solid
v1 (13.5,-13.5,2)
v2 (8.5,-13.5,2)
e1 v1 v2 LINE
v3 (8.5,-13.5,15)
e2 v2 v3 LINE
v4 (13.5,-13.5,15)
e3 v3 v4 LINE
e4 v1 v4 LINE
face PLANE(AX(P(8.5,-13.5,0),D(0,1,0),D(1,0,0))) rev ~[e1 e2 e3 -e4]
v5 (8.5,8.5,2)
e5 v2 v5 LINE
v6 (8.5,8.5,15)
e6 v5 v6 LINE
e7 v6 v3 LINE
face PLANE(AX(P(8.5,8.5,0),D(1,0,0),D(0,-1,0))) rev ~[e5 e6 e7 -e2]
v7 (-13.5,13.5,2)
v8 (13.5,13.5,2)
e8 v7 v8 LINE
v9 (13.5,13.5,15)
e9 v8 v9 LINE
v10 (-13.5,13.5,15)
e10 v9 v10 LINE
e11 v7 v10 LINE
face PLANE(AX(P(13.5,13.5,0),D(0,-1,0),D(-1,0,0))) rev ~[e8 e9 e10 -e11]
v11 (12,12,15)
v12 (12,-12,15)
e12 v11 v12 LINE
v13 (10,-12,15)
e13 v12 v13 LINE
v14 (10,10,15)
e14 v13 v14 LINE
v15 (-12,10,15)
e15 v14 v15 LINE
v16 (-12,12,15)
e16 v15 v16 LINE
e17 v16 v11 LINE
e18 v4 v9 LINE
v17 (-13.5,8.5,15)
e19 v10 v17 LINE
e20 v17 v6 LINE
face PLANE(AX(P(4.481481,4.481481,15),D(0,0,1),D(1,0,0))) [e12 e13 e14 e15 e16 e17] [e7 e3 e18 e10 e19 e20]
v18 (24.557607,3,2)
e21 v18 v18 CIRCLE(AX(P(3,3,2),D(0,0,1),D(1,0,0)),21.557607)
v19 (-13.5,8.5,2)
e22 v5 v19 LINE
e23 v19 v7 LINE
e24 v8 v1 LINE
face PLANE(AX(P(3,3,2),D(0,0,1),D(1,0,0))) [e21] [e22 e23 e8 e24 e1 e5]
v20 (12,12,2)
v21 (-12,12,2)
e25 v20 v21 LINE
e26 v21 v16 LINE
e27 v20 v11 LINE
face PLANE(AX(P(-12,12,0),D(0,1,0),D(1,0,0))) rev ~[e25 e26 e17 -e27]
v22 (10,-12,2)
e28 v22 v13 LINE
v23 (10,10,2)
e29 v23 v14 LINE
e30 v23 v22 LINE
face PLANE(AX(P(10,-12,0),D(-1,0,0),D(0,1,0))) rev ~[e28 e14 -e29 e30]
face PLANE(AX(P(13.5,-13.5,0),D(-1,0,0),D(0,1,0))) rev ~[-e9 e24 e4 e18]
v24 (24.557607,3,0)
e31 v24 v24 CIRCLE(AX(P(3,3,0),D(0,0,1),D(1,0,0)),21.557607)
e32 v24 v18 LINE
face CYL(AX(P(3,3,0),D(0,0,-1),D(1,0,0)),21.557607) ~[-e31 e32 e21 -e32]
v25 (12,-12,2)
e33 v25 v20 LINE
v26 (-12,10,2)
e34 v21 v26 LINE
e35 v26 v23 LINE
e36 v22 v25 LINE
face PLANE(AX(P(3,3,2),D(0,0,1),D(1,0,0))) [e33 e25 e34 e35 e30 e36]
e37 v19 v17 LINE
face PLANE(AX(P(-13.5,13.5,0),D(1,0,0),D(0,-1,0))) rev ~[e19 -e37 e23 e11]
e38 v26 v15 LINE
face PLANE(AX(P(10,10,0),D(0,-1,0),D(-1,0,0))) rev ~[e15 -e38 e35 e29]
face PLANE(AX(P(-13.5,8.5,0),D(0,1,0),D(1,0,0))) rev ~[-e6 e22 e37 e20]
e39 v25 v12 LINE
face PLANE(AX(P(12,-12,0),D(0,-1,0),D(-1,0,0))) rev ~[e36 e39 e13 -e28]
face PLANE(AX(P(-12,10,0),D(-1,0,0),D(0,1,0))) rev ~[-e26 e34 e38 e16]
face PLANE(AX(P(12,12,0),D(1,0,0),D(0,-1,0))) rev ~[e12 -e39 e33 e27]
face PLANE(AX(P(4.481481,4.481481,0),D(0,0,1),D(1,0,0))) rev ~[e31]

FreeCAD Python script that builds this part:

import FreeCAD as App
import Part
import Sketcher

V = App.Vector
Q = App.Units.Quantity


def add_polygon(sketch, points):
    """Adds a closed chain of lines whose ends are joined by coincident constraints."""
    first, n = sketch.GeometryCount, len(points)
    for a, b in zip(points, points[1:] + points[:1]):
        sketch.addGeometry(Part.LineSegment(App.Vector(*a, 0), App.Vector(*b, 0)), False)
    for i in range(n):
        sketch.addConstraint(Sketcher.Constraint("Coincident", first + i, 2, first + (i + 1) % n, 1))

doc = App.newDocument("Part")
body = doc.addObject("PartDesign::Body", "Body")

sketch1 = body.newObject("Sketcher::SketchObject", "Sketch")
sketch1.AttachmentSupport = (doc.getObject("XY_Plane"), [""])
sketch1.MapMode = "FlatFace"
sketch1.addGeometry(Part.Circle(V(3, 3, 0), V(0, 0, 1), 21.557607), False)
sketch1.addConstraint([
    Sketcher.Constraint("DistanceX", -1, 1, 0, 3, Q("3 mm")),
    Sketcher.Constraint("DistanceY", -1, 1, 0, 3, Q("3 mm")),
    Sketcher.Constraint("Diameter", 0, Q("43.115214 mm")),
])
pad1 = body.newObject("PartDesign::Pad", "Pad")
pad1.Profile = sketch1
pad1.Length = 2

sketch2 = body.newObject("Sketcher::SketchObject", "Sketch001")
sketch2.AttachmentSupport = (doc.getObject("XY_Plane"), [""])
sketch2.MapMode = "FlatFace"
add_polygon(sketch2, [(13.5, -13.5), (13.5, 13.5), (-13.5, 13.5), (-13.5, 8.5), (8.5, 8.5), (8.5, -13.5)])
add_polygon(sketch2, [(10, 10), (-12, 10), (-12, 12), (12, 12), (12, -12), (10, -12)])
sketch2.addConstraint([
    Sketcher.Constraint("Vertical", 0),
    Sketcher.Constraint("Horizontal", 1),
    Sketcher.Constraint("Vertical", 2),
    Sketcher.Constraint("Horizontal", 3),
    Sketcher.Constraint("Vertical", 4),
    Sketcher.Constraint("Horizontal", 5),
    Sketcher.Constraint("Horizontal", 6),
    Sketcher.Constraint("Vertical", 7),
    Sketcher.Constraint("Horizontal", 8),
    Sketcher.Constraint("Vertical", 9),
    Sketcher.Constraint("Horizontal", 10),
    Sketcher.Constraint("Vertical", 11),
    Sketcher.Constraint("Symmetric", 1, 2, 5, 2, -1, 1),
    Sketcher.Constraint("Symmetric", 7, 2, 9, 2, -1, 1),
    Sketcher.Constraint("Equal", 3, 6),
    Sketcher.Constraint("Equal", 1, 0),
    Sketcher.Constraint("Equal", 5, 2),
    Sketcher.Constraint("Equal", 10, 7),
    Sketcher.Constraint("Equal", 8, 9),
    Sketcher.Constraint("DistanceX", 1, 2, 1, 1, Q("27 mm")),
    Sketcher.Constraint("DistanceX", 3, 1, 3, 2, Q("22 mm")),
    Sketcher.Constraint("DistanceX", 8, 1, 8, 2, Q("24 mm")),
])
pad2 = body.newObject("PartDesign::Pad", "Pad001")
pad2.Profile = sketch2
pad2.Length = 15

doc.recompute()
